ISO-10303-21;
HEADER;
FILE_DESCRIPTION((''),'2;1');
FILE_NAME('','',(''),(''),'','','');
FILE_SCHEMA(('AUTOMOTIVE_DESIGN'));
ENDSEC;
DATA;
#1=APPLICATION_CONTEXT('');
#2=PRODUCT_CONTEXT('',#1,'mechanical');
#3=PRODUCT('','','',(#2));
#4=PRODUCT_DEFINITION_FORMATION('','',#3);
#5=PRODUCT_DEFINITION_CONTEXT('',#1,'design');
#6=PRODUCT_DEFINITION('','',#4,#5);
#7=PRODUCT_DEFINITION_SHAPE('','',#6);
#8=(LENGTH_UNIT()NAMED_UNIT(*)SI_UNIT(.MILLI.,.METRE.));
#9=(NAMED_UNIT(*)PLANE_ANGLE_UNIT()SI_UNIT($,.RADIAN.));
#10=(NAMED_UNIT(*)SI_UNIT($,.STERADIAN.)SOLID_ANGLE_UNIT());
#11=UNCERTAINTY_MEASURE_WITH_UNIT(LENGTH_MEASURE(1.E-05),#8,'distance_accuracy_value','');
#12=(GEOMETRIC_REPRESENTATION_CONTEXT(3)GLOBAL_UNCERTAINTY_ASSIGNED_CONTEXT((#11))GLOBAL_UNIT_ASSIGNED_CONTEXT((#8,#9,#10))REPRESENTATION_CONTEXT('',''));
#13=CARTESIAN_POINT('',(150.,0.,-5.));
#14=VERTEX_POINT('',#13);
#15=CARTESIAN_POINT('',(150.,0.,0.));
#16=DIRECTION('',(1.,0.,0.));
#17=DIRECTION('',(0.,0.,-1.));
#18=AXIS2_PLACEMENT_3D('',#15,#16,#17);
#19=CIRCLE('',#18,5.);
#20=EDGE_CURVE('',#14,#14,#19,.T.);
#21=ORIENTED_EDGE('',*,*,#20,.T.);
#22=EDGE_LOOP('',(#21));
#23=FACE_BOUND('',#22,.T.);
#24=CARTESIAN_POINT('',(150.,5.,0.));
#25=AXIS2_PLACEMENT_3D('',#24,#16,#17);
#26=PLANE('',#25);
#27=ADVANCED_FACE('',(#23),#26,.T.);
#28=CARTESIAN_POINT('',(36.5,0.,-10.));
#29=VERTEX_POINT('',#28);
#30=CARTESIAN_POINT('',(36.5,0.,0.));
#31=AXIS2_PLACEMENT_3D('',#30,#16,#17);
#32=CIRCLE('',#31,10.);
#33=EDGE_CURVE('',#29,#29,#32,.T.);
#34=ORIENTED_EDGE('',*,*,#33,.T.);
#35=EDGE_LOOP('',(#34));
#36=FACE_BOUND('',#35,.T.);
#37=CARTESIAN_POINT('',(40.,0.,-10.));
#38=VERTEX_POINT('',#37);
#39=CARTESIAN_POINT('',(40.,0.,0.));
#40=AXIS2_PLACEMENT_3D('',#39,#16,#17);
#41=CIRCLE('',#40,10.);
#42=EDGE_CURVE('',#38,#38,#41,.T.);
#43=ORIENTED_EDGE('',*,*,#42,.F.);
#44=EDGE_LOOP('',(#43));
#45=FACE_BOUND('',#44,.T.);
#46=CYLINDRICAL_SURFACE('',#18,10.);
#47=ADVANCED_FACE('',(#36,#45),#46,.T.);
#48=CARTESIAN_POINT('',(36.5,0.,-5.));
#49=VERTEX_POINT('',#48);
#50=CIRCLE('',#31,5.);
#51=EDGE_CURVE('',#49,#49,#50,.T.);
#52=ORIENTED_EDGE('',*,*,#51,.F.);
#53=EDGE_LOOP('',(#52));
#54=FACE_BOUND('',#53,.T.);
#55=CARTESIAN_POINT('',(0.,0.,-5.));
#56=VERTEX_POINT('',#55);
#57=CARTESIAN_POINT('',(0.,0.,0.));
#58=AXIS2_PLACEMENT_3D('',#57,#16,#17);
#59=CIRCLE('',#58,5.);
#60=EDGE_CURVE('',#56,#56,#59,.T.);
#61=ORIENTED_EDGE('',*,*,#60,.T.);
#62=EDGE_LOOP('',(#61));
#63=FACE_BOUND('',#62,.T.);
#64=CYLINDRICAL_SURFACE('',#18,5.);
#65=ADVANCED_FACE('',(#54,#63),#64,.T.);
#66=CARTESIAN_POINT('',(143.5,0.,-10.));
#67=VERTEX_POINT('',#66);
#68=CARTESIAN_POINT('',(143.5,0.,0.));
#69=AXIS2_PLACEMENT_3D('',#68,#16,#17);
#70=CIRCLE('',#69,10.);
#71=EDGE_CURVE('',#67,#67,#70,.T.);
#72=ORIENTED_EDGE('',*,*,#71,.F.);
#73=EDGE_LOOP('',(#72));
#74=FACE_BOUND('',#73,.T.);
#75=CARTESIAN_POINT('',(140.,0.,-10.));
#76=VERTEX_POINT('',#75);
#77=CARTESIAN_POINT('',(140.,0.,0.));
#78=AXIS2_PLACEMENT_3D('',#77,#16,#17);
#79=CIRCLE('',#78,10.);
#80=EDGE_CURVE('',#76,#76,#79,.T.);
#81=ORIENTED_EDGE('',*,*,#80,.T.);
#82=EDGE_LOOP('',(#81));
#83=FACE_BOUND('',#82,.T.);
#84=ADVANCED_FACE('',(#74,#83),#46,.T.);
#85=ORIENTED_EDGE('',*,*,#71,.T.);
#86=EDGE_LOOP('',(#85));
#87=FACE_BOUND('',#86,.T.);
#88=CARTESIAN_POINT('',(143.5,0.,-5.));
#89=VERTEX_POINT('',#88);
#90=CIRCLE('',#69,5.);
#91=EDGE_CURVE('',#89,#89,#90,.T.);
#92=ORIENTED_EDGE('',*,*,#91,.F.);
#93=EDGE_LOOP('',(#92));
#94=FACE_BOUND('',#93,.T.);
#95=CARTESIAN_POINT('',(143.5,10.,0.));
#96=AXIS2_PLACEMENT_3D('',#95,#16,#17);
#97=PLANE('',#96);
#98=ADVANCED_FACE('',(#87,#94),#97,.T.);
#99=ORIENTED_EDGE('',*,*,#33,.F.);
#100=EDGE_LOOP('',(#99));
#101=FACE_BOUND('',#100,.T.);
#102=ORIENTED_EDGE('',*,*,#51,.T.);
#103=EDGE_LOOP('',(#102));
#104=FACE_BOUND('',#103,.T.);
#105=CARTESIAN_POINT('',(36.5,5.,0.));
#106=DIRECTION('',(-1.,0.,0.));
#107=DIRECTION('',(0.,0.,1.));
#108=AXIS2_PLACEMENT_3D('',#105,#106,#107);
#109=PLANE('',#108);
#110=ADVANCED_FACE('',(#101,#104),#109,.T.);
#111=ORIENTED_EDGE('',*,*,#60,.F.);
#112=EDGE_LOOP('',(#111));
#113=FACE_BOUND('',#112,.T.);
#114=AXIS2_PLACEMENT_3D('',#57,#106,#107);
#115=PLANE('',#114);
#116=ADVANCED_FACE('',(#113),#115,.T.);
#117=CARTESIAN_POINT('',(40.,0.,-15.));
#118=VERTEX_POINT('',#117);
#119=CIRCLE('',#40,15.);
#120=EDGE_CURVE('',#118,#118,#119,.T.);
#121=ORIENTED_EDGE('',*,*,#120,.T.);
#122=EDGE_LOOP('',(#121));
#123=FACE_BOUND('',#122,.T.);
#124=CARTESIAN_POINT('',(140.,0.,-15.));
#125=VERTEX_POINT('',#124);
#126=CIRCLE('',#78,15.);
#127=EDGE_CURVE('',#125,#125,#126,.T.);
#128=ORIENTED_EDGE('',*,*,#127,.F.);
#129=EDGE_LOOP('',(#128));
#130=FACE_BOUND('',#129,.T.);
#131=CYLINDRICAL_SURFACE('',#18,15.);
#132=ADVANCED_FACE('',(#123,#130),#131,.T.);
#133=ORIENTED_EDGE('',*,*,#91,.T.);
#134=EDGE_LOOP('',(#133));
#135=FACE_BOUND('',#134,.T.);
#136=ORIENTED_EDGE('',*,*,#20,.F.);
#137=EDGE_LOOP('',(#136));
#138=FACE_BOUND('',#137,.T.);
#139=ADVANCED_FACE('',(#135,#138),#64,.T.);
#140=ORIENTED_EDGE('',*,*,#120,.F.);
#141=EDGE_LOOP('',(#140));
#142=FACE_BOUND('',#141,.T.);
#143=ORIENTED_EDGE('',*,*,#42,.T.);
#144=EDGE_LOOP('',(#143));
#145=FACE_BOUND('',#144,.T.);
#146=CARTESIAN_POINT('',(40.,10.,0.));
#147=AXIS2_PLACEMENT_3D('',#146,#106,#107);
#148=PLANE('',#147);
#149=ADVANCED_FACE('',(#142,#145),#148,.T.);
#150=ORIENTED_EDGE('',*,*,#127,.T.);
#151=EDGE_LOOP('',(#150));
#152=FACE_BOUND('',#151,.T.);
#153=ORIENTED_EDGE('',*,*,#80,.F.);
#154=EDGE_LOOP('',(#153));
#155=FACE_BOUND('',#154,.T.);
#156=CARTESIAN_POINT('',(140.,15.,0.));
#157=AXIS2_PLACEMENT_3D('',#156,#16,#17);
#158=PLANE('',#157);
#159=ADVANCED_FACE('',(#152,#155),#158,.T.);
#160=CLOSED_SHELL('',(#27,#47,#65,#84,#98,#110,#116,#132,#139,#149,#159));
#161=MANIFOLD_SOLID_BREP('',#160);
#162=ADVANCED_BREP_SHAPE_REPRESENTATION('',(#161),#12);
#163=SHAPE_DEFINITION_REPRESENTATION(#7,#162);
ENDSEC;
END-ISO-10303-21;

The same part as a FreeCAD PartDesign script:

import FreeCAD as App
import Part
import Sketcher
from FreeCAD import Vector

doc = App.newDocument("Part")
body = doc.addObject("PartDesign::Body", "Body")

# Sketch on XY plane
sketch1 = doc.addObject("Sketcher::SketchObject", "Sketch")
body.addObject(sketch1)
sketch1.AttachmentSupport = (doc.XY_Plane, [""])
sketch1.MapMode = "FlatFace"
sketch1.addGeometry([
    Part.LineSegment(Vector(0, 5, 0), Vector(0, 0, 0)),  # 0
    Part.LineSegment(Vector(0, 0, 0), Vector(150, 0, 0)),  # 1
    Part.LineSegment(Vector(150, 0, 0), Vector(150, 5, 0)),  # 2
    Part.LineSegment(Vector(150, 5, 0), Vector(143.5, 5, 0)),  # 3
    Part.LineSegment(Vector(143.5, 5, 0), Vector(143.5, 10, 0)),  # 4
    Part.LineSegment(Vector(143.5, 10, 0), Vector(140, 10, 0)),  # 5
    Part.LineSegment(Vector(140, 10, 0), Vector(140, 15, 0)),  # 6
    Part.LineSegment(Vector(140, 15, 0), Vector(40, 15, 0)),  # 7
    Part.LineSegment(Vector(40, 15, 0), Vector(40, 10, 0)),  # 8
    Part.LineSegment(Vector(40, 10, 0), Vector(36.5, 10, 0)),  # 9
    Part.LineSegment(Vector(36.5, 10, 0), Vector(36.5, 5, 0)),  # 10
    Part.LineSegment(Vector(36.5, 5, 0), Vector(0, 5, 0)),  # 11
], False)
sketch1.addConstraint([
    Sketcher.Constraint("Coincident", 0, 2, 1, 1),
    Sketcher.Constraint("Coincident", 1, 2, 2, 1),
    Sketcher.Constraint("Coincident", 2, 2, 3, 1),
    Sketcher.Constraint("Coincident", 3, 2, 4, 1),
    Sketcher.Constraint("Coincident", 4, 2, 5, 1),
    Sketcher.Constraint("Coincident", 5, 2, 6, 1),
    Sketcher.Constraint("Coincident", 6, 2, 7, 1),
    Sketcher.Constraint("Coincident", 7, 2, 8, 1),
    Sketcher.Constraint("Coincident", 8, 2, 9, 1),
    Sketcher.Constraint("Coincident", 9, 2, 10, 1),
    Sketcher.Constraint("Coincident", 10, 2, 11, 1),
    Sketcher.Constraint("Coincident", 11, 2, 0, 1),
    Sketcher.Constraint("Vertical", 0),
    Sketcher.Constraint("Horizontal", 1),
    Sketcher.Constraint("Vertical", 2),
    Sketcher.Constraint("Horizontal", 3),
    Sketcher.Constraint("Vertical", 4),
    Sketcher.Constraint("Horizontal", 5),
    Sketcher.Constraint("Vertical", 6),
    Sketcher.Constraint("Horizontal", 7),
    Sketcher.Constraint("Vertical", 8),
    Sketcher.Constraint("Horizontal", 9),
    Sketcher.Constraint("Vertical", 10),
    Sketcher.Constraint("Horizontal", 11),
    Sketcher.Constraint("Coincident", 0, 2, -1, 1),
    Sketcher.Constraint("Horizontal", 5, 2, 8, 2),
    Sketcher.Constraint("Horizontal", 3, 2, 10, 2),
    Sketcher.Constraint("Equal", 5, 9),
    Sketcher.Constraint("Equal", 2, 4),
    Sketcher.Constraint("Equal", 4, 6),
    Sketcher.Constraint("DistanceX", 1, 1, 1, 2, 150.0),
    Sketcher.Constraint("DistanceX", 7, 2, 7, 1, 100.0),
    Sketcher.Constraint("DistanceY", 0, 2, 0, 1, 5.0),
    Sketcher.Constraint("DistanceX", 3, 2, 3, 1, 6.5),
    Sketcher.Constraint("DistanceX", 5, 2, 5, 1, 3.5),
])
revolution = doc.addObject("PartDesign::Revolution", "Revolution")
body.addObject(revolution)
revolution.Profile = sketch1
revolution.ReferenceAxis = (sketch1, ["H_Axis"])
revolution.Angle = 360

doc.recompute()
